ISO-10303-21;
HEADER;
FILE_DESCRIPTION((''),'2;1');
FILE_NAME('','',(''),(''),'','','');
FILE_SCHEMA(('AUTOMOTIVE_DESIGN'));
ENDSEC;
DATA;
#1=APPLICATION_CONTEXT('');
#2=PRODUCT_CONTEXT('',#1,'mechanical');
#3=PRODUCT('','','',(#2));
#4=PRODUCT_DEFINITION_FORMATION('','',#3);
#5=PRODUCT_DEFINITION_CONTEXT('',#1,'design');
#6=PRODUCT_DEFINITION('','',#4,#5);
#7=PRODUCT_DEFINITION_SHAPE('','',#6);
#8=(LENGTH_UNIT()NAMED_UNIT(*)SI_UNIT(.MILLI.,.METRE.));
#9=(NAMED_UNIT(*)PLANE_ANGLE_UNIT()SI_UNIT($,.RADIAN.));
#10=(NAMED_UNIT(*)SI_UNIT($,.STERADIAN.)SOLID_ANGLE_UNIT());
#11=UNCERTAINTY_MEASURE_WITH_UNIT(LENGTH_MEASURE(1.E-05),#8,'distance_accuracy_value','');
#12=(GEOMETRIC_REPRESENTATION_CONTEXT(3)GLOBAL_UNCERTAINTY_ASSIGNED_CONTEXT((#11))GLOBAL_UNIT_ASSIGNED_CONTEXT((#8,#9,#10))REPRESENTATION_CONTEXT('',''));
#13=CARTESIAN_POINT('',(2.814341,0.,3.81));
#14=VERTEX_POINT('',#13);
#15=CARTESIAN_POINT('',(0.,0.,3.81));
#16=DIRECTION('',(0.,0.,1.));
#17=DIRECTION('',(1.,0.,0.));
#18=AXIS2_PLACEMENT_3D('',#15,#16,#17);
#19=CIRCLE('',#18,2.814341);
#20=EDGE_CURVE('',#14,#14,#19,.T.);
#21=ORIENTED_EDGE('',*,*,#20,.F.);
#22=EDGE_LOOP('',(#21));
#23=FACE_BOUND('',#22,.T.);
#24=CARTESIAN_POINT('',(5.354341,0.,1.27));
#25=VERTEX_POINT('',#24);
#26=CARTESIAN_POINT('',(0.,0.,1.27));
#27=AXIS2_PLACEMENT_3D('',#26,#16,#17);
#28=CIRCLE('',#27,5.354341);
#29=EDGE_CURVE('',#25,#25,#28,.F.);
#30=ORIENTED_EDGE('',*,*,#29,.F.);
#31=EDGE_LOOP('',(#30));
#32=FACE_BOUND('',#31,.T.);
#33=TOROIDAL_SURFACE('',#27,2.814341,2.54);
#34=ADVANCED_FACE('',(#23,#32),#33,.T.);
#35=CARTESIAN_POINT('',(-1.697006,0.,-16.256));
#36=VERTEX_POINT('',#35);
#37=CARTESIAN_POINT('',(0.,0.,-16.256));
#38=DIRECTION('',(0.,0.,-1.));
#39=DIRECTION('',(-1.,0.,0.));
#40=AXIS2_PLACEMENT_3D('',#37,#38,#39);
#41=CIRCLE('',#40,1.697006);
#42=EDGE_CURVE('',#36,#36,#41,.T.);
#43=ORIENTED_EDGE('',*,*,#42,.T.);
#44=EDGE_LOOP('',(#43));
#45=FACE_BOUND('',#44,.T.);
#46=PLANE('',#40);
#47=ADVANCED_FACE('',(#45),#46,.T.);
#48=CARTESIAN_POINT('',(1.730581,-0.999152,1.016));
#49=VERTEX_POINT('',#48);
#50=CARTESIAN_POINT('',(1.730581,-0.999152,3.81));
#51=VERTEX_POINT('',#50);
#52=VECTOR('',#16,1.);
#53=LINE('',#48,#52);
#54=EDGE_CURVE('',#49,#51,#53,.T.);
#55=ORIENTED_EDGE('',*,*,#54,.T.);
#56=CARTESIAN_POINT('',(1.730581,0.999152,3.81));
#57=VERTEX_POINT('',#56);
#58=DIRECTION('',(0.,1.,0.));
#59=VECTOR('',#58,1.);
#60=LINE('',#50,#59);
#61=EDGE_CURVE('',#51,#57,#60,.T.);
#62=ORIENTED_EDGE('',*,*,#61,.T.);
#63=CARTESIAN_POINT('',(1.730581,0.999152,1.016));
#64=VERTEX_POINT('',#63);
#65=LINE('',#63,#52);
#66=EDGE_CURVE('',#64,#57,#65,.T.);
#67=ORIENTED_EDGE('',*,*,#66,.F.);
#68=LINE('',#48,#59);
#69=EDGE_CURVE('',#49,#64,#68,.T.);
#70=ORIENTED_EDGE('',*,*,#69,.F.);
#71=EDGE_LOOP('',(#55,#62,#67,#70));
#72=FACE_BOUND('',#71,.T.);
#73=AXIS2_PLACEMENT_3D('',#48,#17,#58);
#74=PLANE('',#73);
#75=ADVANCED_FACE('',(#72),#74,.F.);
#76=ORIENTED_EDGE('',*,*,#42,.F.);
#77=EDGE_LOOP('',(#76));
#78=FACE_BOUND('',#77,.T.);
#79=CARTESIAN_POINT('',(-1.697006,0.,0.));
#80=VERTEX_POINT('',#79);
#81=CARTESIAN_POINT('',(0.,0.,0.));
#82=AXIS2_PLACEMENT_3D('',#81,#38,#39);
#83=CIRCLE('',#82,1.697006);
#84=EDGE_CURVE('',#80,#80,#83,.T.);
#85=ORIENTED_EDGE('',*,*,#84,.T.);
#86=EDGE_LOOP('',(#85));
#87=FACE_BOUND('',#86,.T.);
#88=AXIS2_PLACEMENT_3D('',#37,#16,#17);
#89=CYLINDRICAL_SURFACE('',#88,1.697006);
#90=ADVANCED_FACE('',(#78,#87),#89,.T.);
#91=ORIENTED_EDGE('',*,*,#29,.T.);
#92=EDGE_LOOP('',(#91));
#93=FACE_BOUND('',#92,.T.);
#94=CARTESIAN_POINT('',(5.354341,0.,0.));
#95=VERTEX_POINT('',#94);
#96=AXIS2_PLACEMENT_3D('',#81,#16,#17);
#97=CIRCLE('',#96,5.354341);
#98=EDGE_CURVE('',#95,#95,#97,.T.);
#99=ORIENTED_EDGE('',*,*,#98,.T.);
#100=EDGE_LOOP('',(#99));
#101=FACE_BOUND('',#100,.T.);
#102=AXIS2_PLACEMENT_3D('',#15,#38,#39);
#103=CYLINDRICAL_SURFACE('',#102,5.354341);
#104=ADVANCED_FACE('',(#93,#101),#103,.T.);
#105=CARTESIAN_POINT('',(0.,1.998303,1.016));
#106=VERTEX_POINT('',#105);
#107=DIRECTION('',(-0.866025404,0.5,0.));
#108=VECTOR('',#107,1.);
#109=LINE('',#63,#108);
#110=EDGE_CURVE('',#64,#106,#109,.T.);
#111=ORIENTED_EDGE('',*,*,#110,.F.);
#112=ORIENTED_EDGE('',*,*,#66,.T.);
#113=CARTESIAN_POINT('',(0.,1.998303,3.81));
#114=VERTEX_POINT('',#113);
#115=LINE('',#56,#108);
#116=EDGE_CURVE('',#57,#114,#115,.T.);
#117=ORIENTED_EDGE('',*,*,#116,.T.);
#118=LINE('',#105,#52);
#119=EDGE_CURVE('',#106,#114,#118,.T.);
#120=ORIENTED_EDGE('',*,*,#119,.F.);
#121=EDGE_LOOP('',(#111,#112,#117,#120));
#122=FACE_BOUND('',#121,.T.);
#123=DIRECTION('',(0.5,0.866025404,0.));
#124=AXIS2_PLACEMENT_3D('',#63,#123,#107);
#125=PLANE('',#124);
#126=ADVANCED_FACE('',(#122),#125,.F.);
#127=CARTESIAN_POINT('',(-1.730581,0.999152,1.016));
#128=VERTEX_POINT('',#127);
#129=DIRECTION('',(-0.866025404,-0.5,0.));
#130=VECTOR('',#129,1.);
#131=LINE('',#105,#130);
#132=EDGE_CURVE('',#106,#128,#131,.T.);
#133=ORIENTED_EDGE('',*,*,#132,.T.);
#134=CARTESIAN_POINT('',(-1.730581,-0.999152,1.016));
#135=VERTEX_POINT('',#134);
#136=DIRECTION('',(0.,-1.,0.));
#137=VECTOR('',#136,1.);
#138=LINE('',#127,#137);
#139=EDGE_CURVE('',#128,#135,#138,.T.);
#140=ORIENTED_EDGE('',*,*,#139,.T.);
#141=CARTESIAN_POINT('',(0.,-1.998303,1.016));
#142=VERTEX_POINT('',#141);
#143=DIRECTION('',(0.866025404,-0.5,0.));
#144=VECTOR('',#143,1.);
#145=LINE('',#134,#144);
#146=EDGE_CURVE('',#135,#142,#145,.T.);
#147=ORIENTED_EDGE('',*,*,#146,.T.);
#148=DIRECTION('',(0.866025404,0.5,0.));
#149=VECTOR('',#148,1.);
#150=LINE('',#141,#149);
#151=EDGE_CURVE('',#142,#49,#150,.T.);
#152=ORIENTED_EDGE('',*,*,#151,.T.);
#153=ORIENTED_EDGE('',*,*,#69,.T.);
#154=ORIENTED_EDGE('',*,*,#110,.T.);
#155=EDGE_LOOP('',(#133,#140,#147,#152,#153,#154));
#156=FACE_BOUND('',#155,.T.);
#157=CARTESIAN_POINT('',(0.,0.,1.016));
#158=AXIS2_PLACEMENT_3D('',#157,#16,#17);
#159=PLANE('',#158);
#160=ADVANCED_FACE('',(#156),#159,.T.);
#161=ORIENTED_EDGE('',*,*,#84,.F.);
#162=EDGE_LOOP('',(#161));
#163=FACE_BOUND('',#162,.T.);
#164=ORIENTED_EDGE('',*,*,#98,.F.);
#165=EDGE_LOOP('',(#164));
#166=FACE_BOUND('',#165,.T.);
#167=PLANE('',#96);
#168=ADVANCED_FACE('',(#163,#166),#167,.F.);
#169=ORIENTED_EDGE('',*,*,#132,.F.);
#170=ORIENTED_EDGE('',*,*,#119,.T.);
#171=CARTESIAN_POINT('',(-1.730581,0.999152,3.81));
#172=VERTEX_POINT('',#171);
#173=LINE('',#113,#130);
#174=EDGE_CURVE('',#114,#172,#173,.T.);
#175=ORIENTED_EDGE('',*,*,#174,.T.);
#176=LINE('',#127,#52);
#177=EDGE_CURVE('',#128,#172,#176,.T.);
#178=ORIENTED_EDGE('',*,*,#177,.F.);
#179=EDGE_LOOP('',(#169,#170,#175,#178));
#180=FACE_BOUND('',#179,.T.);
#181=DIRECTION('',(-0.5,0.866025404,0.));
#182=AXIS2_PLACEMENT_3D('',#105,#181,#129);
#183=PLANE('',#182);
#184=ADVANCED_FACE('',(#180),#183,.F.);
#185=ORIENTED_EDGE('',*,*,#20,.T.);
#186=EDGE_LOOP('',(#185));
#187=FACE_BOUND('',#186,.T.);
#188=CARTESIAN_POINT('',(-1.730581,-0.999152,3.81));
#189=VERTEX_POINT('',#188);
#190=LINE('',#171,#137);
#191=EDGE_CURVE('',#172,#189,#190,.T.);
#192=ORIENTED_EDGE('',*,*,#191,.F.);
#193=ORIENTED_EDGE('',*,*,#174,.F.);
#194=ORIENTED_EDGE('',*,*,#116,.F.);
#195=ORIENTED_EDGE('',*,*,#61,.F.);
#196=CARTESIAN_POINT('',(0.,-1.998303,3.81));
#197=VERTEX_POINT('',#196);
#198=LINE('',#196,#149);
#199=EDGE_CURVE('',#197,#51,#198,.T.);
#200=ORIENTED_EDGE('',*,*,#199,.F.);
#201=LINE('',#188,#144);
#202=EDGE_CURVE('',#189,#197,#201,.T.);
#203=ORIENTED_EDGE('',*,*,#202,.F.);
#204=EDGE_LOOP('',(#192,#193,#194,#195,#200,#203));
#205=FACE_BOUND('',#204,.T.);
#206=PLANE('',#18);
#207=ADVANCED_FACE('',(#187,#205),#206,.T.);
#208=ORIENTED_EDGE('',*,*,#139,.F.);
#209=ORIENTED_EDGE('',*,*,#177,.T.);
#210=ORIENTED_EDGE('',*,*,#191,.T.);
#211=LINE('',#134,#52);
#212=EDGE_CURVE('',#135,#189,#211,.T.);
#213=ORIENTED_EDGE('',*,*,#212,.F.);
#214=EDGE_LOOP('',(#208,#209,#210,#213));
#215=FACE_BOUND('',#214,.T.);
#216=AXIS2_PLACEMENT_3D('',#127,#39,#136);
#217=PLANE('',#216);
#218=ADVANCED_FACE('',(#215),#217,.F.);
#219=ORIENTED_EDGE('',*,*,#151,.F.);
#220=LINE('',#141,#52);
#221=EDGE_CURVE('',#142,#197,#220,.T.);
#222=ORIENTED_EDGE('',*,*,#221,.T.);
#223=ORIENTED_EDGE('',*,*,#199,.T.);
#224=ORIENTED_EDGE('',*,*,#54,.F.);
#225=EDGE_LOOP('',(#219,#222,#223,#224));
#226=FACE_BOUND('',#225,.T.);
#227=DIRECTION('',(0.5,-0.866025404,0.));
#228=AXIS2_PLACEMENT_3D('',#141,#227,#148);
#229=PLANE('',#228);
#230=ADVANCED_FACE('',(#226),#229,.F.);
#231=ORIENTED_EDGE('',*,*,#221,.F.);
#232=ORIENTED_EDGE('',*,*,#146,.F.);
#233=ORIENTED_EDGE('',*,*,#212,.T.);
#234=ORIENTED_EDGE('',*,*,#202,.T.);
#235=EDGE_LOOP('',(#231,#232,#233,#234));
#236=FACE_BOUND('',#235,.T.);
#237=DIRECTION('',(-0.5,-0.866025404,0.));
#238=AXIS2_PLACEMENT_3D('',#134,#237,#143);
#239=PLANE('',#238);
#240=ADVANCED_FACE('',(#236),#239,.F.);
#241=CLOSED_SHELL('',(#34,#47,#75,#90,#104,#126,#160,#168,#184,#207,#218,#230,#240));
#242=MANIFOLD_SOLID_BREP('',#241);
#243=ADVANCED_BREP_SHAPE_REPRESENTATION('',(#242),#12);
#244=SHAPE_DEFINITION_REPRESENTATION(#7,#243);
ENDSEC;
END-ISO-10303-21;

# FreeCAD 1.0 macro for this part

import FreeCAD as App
import Part
import Sketcher
Q = App.Units.Quantity


def edges_at(feature, points):
    """Names of the edges that pass closest to the given points."""
    edges = feature.Shape.Edges
    near = lambda p: min(range(len(edges)), key=lambda i: edges[i].distToShape(Part.Vertex(*p))[0])
    return sorted({f"Edge{near(p) + 1}" for p in points})


def add_polygon(sketch, points):
    """Adds a closed chain of lines whose ends are joined by coincident constraints."""
    first, n = sketch.GeometryCount, len(points)
    for a, b in zip(points, points[1:] + points[:1]):
        sketch.addGeometry(Part.LineSegment(App.Vector(*a, 0), App.Vector(*b, 0)), False)
    for i in range(n):
        sketch.addConstraint(Sketcher.Constraint("Coincident", first + i, 2, first + (i + 1) % n, 1))

doc = App.newDocument("Part")
body = doc.addObject("PartDesign::Body", "Body")

# Sketch on XY plane
sketch1 = doc.addObject("Sketcher::SketchObject", "Sketch")
body.addObject(sketch1)
sketch1.AttachmentSupport = (doc.XY_Plane, [""])
sketch1.MapMode = "FlatFace"
sketch1.addGeometry(Part.Circle(App.Vector(0, 0, 0), App.Vector(0, 0, 1), 5), False)
sketch1.addConstraint([
    Sketcher.Constraint("Coincident", 0, 3, -1, 1),
    Sketcher.Constraint("Diameter", 0, 10.708682),
])
pad1 = doc.addObject("PartDesign::Pad", "Pad")
body.addObject(pad1)
pad1.Profile = sketch1
pad1.Length = Q("0.15 in")
doc.recompute()

fillet = doc.addObject("PartDesign::Fillet", "Fillet")
body.addObject(fillet)
fillet.Base = (pad1, edges_at(pad1, [(-5.354, 0, 3.81)]))
fillet.Radius = Q("0.1 in")

# Sketch on XY plane
sketch2 = doc.addObject("Sketcher::SketchObject", "Sketch001")
body.addObject(sketch2)
sketch2.AttachmentSupport = (doc.XY_Plane, [""])
sketch2.MapMode = "FlatFace"
sketch2.AttachmentOffset = App.Placement(App.Vector(0, 0, 0.15 * 25.4), App.Rotation())
add_polygon(sketch2, [(0, 2), (-1.7, 1), (-1.7, -1), (0, -2), (1.7, -1), (1.7, 1)])  # lines 0-5
sketch2.addConstraint([
    Sketcher.Constraint("Vertical", 1),
    Sketcher.Constraint("Vertical", 4),
    Sketcher.Constraint("Symmetric", 0, 2, 3, 2, -1, 1),
    Sketcher.Constraint("Symmetric", 2, 2, 5, 2, -1, 1),
    Sketcher.Constraint("PointOnObject", 2, 2, -2),
    Sketcher.Constraint("Parallel", 2, 5),
    Sketcher.Constraint("Horizontal", 1, 2, 3, 2),
    Sketcher.Constraint("Angle", 0, Q("-150 deg")),
    Sketcher.Constraint("DistanceY", 1, 2, 1, 1, 1.998303),
    Sketcher.Constraint("DistanceX", 0, 2, -1, 1, 1.730581),
])
pocket1 = doc.addObject("PartDesign::Pocket", "Pocket")
body.addObject(pocket1)
pocket1.Profile = sketch2
pocket1.Length = Q("0.11 in")

# Sketch on XY plane
sketch3 = doc.addObject("Sketcher::SketchObject", "Sketch002")
body.addObject(sketch3)
sketch3.AttachmentSupport = (doc.XY_Plane, [""])
sketch3.MapMode = "FlatFace"
sketch3.addGeometry(Part.Circle(App.Vector(0, 0, 0), App.Vector(0, 0, 1), 1.7), False)
sketch3.addConstraint([
    Sketcher.Constraint("Coincident", 0, 3, -1, 1),
    Sketcher.Constraint("Diameter", 0, 3.394012),
])
pad2 = doc.addObject("PartDesign::Pad", "Pad001")
body.addObject(pad2)
pad2.Profile = sketch3
pad2.Length = Q("0.64 in")
pad2.Reversed = True

doc.recompute()
